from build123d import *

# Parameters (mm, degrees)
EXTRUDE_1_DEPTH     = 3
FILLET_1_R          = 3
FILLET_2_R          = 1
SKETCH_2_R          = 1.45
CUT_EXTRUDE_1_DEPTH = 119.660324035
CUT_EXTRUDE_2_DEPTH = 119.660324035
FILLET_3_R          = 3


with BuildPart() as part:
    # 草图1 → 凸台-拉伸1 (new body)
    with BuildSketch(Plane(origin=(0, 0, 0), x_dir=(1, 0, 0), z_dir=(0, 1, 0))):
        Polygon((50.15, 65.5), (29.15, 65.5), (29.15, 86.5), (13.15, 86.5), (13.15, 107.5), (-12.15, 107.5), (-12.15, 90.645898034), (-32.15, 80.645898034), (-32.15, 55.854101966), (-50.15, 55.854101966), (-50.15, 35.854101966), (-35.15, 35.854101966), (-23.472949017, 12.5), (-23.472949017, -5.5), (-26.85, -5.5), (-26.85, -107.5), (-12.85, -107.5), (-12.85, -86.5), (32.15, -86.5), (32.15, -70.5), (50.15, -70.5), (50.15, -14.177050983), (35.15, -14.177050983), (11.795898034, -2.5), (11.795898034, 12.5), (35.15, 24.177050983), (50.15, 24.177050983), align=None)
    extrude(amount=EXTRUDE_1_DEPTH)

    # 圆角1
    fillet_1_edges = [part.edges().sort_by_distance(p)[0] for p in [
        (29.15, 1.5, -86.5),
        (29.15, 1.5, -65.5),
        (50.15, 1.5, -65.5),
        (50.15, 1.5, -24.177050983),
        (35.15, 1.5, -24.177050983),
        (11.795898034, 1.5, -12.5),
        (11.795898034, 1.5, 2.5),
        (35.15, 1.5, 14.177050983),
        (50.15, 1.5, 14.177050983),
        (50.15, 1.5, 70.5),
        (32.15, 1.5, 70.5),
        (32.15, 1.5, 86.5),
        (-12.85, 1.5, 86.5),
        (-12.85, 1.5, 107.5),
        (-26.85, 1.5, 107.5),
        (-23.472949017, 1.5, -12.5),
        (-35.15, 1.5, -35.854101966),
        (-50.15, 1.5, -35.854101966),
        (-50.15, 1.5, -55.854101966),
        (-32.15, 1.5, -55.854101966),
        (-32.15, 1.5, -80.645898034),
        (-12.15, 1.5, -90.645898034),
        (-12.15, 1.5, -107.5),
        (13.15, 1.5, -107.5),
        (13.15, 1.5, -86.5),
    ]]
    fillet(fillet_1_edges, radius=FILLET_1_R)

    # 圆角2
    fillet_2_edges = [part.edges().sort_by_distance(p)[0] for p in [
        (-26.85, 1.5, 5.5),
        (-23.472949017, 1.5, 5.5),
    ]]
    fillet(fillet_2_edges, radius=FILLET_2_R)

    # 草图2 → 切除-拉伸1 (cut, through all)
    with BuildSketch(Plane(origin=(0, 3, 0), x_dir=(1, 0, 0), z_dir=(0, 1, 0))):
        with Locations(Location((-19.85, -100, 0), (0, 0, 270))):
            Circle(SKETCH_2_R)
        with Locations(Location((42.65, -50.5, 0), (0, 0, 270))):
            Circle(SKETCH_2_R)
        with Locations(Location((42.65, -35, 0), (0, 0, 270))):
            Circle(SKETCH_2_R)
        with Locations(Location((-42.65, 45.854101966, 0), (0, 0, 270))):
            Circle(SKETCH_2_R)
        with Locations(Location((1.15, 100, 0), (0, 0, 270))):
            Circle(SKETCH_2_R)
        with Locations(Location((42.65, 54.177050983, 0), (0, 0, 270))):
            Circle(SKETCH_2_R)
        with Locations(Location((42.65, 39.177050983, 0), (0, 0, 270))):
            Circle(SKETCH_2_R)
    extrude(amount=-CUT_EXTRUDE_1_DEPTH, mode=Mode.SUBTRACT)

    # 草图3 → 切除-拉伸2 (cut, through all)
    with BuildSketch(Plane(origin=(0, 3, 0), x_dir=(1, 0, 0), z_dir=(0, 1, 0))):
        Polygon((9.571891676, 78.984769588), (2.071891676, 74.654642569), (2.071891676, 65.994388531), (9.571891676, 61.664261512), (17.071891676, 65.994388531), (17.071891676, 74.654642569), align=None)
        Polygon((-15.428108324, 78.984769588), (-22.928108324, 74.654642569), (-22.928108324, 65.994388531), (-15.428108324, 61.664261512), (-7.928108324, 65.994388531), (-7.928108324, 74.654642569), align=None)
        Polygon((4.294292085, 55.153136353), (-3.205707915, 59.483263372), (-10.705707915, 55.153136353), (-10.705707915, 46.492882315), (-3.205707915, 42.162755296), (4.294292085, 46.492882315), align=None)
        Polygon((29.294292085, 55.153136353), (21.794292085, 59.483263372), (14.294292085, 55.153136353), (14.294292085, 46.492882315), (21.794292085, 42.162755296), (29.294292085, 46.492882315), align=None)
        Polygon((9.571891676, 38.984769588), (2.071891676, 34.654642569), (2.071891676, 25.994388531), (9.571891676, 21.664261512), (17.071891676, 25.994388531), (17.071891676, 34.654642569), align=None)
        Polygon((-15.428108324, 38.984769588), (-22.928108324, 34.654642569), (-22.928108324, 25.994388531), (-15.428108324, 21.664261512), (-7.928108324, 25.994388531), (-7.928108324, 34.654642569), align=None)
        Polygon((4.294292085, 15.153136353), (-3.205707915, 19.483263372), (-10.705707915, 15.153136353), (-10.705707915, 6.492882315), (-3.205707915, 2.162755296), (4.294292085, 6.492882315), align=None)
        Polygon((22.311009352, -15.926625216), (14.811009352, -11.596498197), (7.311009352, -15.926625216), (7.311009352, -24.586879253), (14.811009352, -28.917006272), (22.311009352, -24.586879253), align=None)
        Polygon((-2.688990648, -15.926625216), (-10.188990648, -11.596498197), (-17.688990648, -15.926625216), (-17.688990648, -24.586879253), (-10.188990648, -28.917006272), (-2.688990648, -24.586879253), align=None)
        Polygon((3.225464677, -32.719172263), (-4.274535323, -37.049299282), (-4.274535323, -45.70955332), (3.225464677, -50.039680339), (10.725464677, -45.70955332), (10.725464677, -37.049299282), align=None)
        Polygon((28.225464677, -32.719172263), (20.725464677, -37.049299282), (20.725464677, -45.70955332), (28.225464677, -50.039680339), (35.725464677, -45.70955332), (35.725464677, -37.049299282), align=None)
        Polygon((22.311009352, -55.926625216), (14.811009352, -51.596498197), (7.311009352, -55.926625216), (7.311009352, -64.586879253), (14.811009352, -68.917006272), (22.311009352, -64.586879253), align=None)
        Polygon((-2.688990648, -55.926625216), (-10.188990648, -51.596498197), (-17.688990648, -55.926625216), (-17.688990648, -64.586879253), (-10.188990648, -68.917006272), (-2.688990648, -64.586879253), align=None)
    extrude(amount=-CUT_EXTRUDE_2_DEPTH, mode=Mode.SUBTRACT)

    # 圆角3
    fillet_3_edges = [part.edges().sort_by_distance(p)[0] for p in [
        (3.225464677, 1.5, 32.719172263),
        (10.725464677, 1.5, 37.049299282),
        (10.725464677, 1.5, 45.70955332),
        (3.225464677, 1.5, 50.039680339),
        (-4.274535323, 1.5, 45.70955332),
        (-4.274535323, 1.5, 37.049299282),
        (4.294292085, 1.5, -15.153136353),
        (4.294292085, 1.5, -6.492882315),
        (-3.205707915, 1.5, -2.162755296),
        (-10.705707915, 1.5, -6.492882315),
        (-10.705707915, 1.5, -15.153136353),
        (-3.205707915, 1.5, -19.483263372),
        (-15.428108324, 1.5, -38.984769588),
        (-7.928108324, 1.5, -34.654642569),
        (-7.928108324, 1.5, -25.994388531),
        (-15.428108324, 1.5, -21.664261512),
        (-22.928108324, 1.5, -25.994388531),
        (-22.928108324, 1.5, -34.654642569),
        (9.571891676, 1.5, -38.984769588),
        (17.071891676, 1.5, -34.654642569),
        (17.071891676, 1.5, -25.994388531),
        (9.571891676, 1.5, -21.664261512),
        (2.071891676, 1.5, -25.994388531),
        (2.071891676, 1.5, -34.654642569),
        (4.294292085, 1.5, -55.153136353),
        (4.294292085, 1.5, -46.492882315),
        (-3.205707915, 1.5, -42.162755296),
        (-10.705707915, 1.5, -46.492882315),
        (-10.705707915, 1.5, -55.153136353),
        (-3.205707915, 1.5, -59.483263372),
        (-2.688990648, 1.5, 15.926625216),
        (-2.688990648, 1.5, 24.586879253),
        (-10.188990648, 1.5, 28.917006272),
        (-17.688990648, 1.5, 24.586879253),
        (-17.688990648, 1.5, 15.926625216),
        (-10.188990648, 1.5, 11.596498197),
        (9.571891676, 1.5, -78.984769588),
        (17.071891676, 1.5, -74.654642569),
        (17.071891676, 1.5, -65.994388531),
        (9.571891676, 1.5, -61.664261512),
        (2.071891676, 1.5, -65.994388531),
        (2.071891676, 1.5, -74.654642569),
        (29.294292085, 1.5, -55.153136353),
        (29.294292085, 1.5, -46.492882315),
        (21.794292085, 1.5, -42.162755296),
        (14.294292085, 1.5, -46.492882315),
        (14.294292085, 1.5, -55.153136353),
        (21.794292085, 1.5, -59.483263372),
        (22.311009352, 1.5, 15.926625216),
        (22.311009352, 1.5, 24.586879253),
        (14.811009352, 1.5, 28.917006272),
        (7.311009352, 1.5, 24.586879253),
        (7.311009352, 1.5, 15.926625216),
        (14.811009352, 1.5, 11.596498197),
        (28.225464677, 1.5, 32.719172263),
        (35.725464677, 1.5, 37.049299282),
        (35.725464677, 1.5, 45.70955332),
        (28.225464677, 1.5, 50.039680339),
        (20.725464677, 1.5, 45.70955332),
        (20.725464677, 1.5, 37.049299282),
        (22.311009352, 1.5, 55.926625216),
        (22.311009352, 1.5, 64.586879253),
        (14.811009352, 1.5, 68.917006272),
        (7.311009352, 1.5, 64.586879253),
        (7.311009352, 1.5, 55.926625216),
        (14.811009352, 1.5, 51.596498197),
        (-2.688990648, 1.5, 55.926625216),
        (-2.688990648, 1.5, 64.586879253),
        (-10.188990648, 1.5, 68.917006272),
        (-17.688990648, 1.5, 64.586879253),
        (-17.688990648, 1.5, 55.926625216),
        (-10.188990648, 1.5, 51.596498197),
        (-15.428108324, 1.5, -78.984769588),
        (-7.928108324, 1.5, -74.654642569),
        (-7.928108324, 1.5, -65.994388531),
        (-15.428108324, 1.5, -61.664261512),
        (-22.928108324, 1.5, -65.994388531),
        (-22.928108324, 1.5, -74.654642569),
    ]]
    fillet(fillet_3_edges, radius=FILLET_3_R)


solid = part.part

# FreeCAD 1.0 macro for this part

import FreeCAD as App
import Part
import Sketcher
from FreeCAD import Vector
Q = App.Units.Quantity


def edges_at(feature, points):
    """Names of the edges that pass closest to the given points."""
    edges = feature.Shape.Edges
    near = lambda p: min(range(len(edges)), key=lambda i: edges[i].distToShape(Part.Vertex(*p))[0])
    return sorted({f"Edge{near(p) + 1}" for p in points})


def add_polygon(sketch, points):
    """Adds a closed chain of lines whose ends are joined by coincident constraints."""
    first, n = sketch.GeometryCount, len(points)
    for a, b in zip(points, points[1:] + points[:1]):
        sketch.addGeometry(Part.LineSegment(App.Vector(*a, 0), App.Vector(*b, 0)), False)
    for i in range(n):
        sketch.addConstraint(Sketcher.Constraint("Coincident", first + i, 2, first + (i + 1) % n, 1))

doc = App.newDocument("Part")
body = doc.addObject("PartDesign::Body", "Body")

# Sketch on XZ plane
sketch1 = doc.addObject("Sketcher::SketchObject", "Sketch")
body.addObject(sketch1)
sketch1.AttachmentSupport = (doc.XZ_Plane, [""])
sketch1.MapMode = "FlatFace"
add_polygon(sketch1, [(50.15, -65.5), (29.15, -65.5), (29.15, -86.5), (13.15, -86.5), (13.15, -107.5), (-12.15, -107.5), (-12.15, -90.645898), (-32.15, -80.645898), (-32.15, -55.854102), (-50.15, -55.854102), (-50.15, -35.854102), (-35.15, -35.854102), (-23.472949, -12.5), (-23.472949, 5.5), (-26.85, 5.5), (-26.85, 107.5), (-12.85, 107.5), (-12.85, 86.5), (32.15, 86.5), (32.15, 70.5), (50.15, 70.5), (50.15, 14.177051), (35.15, 14.177051), (11.795898, 2.5), (11.795898, -12.5), (35.15, -24.177051), (50.15, -24.177051)])  # lines 0-26
sketch1.addConstraint([
    Sketcher.Constraint("Horizontal", 0),
    Sketcher.Constraint("Vertical", 1),
    Sketcher.Constraint("Horizontal", 2),
    Sketcher.Constraint("Vertical", 3),
    Sketcher.Constraint("Horizontal", 4),
    Sketcher.Constraint("Vertical", 5),
    Sketcher.Constraint("Vertical", 7),
    Sketcher.Constraint("Horizontal", 8),
    Sketcher.Constraint("Vertical", 9),
    Sketcher.Constraint("Horizontal", 10),
    Sketcher.Constraint("Vertical", 12),
    Sketcher.Constraint("Horizontal", 13),
    Sketcher.Constraint("Vertical", 14),
    Sketcher.Constraint("Horizontal", 15),
    Sketcher.Constraint("Vertical", 16),
    Sketcher.Constraint("Horizontal", 17),
    Sketcher.Constraint("Vertical", 18),
    Sketcher.Constraint("Horizontal", 19),
    Sketcher.Constraint("Vertical", 20),
    Sketcher.Constraint("Horizontal", 21),
    Sketcher.Constraint("Vertical", 23),
    Sketcher.Constraint("Horizontal", 25),
    Sketcher.Constraint("Vertical", 26),
    Sketcher.Constraint("Perpendicular", 6, 11),
    Sketcher.Constraint("Perpendicular", 11, 24),
    Sketcher.Constraint("Horizontal", 11, 2, 23, 2),
    Sketcher.Constraint("Vertical", 21, 2, 24, 2),
    Sketcher.Constraint("Vertical", 20, 2, 25, 2),
    Sketcher.Constraint("Equal", 8, 19),
    Sketcher.Constraint("Equal", 10, 21),
    Sketcher.Constraint("Equal", 0, 1),
    Sketcher.Constraint("Equal", 1, 3),
    Sketcher.Constraint("Equal", 19, 12),
    Sketcher.Constraint("Equal", 3, 16),
    Sketcher.Constraint("Equal", 2, 18),
    Sketcher.Constraint("Equal", 25, 23),
    Sketcher.Constraint("Equal", 11, 22),
    Sketcher.Constraint("Equal", 22, 24),
    Sketcher.Constraint("DistanceX", 0, 2, 0, 1, 21.0),
    Sketcher.Constraint("DistanceX", 2, 2, 2, 1, 16.0),
    Sketcher.Constraint("DistanceX", 8, 2, 8, 1, 18.0),
    Sketcher.Constraint("DistanceX", 10, 1, 10, 2, 15.0),
    Sketcher.Constraint("DistanceX", 15, 1, 15, 2, 14.0),
    Sketcher.Constraint("DistanceX", 17, 1, 17, 2, 45.0),
    Sketcher.Constraint("DistanceY", 9, 1, 9, 2, 20.0),
    Sketcher.Constraint("DistanceY", 14, 1, 14, 2, 102.0),
    Sketcher.Constraint("DistanceX", 4, 2, 4, 1, 25.3),
    Sketcher.Constraint("DistanceX", 6, 2, 5, 2, 20.0),
    Sketcher.Constraint("DistanceY", 5, 2, 6, 2, 10.0),
    Sketcher.Constraint("DistanceY", 0, 2, -1, 1, 65.5),
    Sketcher.Constraint("DistanceY", 11, 2, -1, 1, 12.5),
    Sketcher.Constraint("DistanceX", -1, 1, 0, 2, 29.15),
    Sketcher.Constraint("DistanceY", 5, 1, 5, 2, 16.854102),
    Sketcher.Constraint("DistanceX", 13, 2, 13, 1, 3.377051),
])
pad1 = doc.addObject("PartDesign::Pad", "Pad")
body.addObject(pad1)
pad1.Profile = sketch1
pad1.Length = 3
pad1.Reversed = True
doc.recompute()

fillet = doc.addObject("PartDesign::Fillet", "Fillet")
body.addObject(fillet)
fillet.Base = (pad1, edges_at(pad1, [
    (29.15, 1.5, -86.5),
    (29.15, 1.5, -65.5),
    (50.15, 1.5, -65.5),
    (50.15, 1.5, -24.177),
    (35.15, 1.5, -24.177),
    (11.796, 1.5, -12.5),
    (11.796, 1.5, 2.5),
    (35.15, 1.5, 14.177),
    (50.15, 1.5, 14.177),
    (50.15, 1.5, 70.5),
    (32.15, 1.5, 70.5),
    (32.15, 1.5, 86.5),
    (-12.85, 1.5, 86.5),
    (-12.85, 1.5, 107.5),
    (-26.85, 1.5, 107.5),
    (-23.473, 1.5, -12.5),
    (-35.15, 1.5, -35.854),
    (-50.15, 1.5, -35.854),
    (-50.15, 1.5, -55.854),
    (-32.15, 1.5, -55.854),
    (-32.15, 1.5, -80.646),
    (-12.15, 1.5, -90.646),
    (-12.15, 1.5, -107.5),
    (13.15, 1.5, -107.5),
    (13.15, 1.5, -86.5),
]))
fillet.Radius = 3
doc.recompute()

fillet2 = doc.addObject("PartDesign::Fillet", "Fillet001")
body.addObject(fillet2)
fillet2.Base = (fillet, edges_at(fillet, [(-26.85, 1.5, 5.5), (-23.473, 1.5, 5.5)]))
fillet2.Radius = 1

# Sketch on XZ plane
sketch2 = doc.addObject("Sketcher::SketchObject", "Sketch001")
body.addObject(sketch2)
sketch2.AttachmentSupport = (doc.XZ_Plane, [""])
sketch2.MapMode = "FlatFace"
sketch2.AttachmentOffset = App.Placement(Vector(0, 0, -3), App.Rotation())
sketch2.addGeometry([
    Part.Circle(Vector(-19.85, 100, 0), Vector(0, 0, 1), 1.45),  # 0
    Part.Circle(Vector(42.65, 50.5, 0), Vector(0, 0, 1), 1.45),  # 1
    Part.Circle(Vector(42.65, 35, 0), Vector(0, 0, 1), 1.45),  # 2
    Part.Circle(Vector(-42.65, -45.854102, 0), Vector(0, 0, 1), 1.45),  # 3
    Part.Circle(Vector(1.15, -100, 0), Vector(0, 0, 1), 1.45),  # 4
    Part.Circle(Vector(42.65, -54.177051, 0), Vector(0, 0, 1), 1.45),  # 5
    Part.Circle(Vector(42.65, -39.177051, 0), Vector(0, 0, 1), 1.45),  # 6
], False)
sketch2.addConstraint([
    Sketcher.Constraint("Equal", 0, 1),
    Sketcher.Constraint("Equal", 1, 2),
    Sketcher.Constraint("Equal", 2, 3),
    Sketcher.Constraint("Equal", 3, 4),
    Sketcher.Constraint("Equal", 4, 5),
    Sketcher.Constraint("Equal", 5, 6),
    Sketcher.Constraint("Vertical", 1, 3, 2, 3),
    Sketcher.Constraint("Vertical", 2, 3, 5, 3),
    Sketcher.Constraint("Vertical", 5, 3, 6, 3),
    Sketcher.Constraint("Diameter", 0, 2.9),
    Sketcher.Constraint("DistanceY", -1, 1, 0, 3, 100.0),
    Sketcher.Constraint("DistanceY", -1, 1, 2, 3, 35.0),
    Sketcher.Constraint("DistanceY", 4, 3, -1, 1, 100.0),
    Sketcher.Constraint("DistanceX", 0, 3, 4, 3, 21.0),
    Sketcher.Constraint("DistanceY", 5, 3, 6, 3, 15.0),
    Sketcher.Constraint("DistanceY", -1, 1, 1, 3, 50.5),
    Sketcher.Constraint("DistanceX", 0, 3, 1, 3, 62.5),
    Sketcher.Constraint("DistanceX", 3, 3, 2, 3, 85.3),
    Sketcher.Constraint("DistanceX", 0, 3, -1, 1, 19.85),
    Sketcher.Constraint("DistanceY", 3, 3, -1, 1, 45.854102),
    Sketcher.Constraint("DistanceY", 5, 3, -1, 1, 54.177051),
])
pocket1 = doc.addObject("PartDesign::Pocket", "Pocket")
body.addObject(pocket1)
pocket1.Profile = sketch2
pocket1.Type = "ThroughAll"
pocket1.Reversed = True

# Sketch on XZ plane
sketch3 = doc.addObject("Sketcher::SketchObject", "Sketch002")
body.addObject(sketch3)
sketch3.AttachmentSupport = (doc.XZ_Plane, [""])
sketch3.MapMode = "FlatFace"
sketch3.AttachmentOffset = App.Placement(Vector(0, 0, -3), App.Rotation())
add_polygon(sketch3, [(9.571892, -78.98477), (2.071892, -74.654643), (2.071892, -65.994389), (9.571892, -61.664262), (17.071892, -65.994389), (17.071892, -74.654643)])  # lines 0-5
add_polygon(sketch3, [(-15.428108, -78.98477), (-22.928108, -74.654643), (-22.928108, -65.994389), (-15.428108, -61.664262), (-7.928108, -65.994389), (-7.928108, -74.654643)])  # lines 6-11
add_polygon(sketch3, [(4.294292, -55.153136), (-3.205708, -59.483263), (-10.705708, -55.153136), (-10.705708, -46.492882), (-3.205708, -42.162755), (4.294292, -46.492882)])  # lines 12-17
add_polygon(sketch3, [(29.294292, -55.153136), (21.794292, -59.483263), (14.294292, -55.153136), (14.294292, -46.492882), (21.794292, -42.162755), (29.294292, -46.492882)])  # lines 18-23
add_polygon(sketch3, [(9.571892, -38.98477), (2.071892, -34.654643), (2.071892, -25.994389), (9.571892, -21.664262), (17.071892, -25.994389), (17.071892, -34.654643)])  # lines 24-29
add_polygon(sketch3, [(-15.428108, -38.98477), (-22.928108, -34.654643), (-22.928108, -25.994389), (-15.428108, -21.664262), (-7.928108, -25.994389), (-7.928108, -34.654643)])  # lines 30-35
add_polygon(sketch3, [(4.294292, -15.153136), (-3.205708, -19.483263), (-10.705708, -15.153136), (-10.705708, -6.492882), (-3.205708, -2.162755), (4.294292, -6.492882)])  # lines 36-41
add_polygon(sketch3, [(22.311009, 15.926625), (14.811009, 11.596498), (7.311009, 15.926625), (7.311009, 24.586879), (14.811009, 28.917006), (22.311009, 24.586879)])  # lines 42-47
add_polygon(sketch3, [(-2.688991, 15.926625), (-10.188991, 11.596498), (-17.688991, 15.926625), (-17.688991, 24.586879), (-10.188991, 28.917006), (-2.688991, 24.586879)])  # lines 48-53
add_polygon(sketch3, [(3.225465, 32.719172), (-4.274535, 37.049299), (-4.274535, 45.709553), (3.225465, 50.03968), (10.725465, 45.709553), (10.725465, 37.049299)])  # lines 54-59
add_polygon(sketch3, [(28.225465, 32.719172), (20.725465, 37.049299), (20.725465, 45.709553), (28.225465, 50.03968), (35.725465, 45.709553), (35.725465, 37.049299)])  # lines 60-65
add_polygon(sketch3, [(22.311009, 55.926625), (14.811009, 51.596498), (7.311009, 55.926625), (7.311009, 64.586879), (14.811009, 68.917006), (22.311009, 64.586879)])  # lines 66-71
add_polygon(sketch3, [(-2.688991, 55.926625), (-10.188991, 51.596498), (-17.688991, 55.926625), (-17.688991, 64.586879), (-10.188991, 68.917006), (-2.688991, 64.586879)])  # lines 72-77
sketch3.addConstraint([
    Sketcher.Constraint("Vertical", 1),
    Sketcher.Constraint("Vertical", 4),
    Sketcher.Constraint("Vertical", 7),
    Sketcher.Constraint("Vertical", 10),
    Sketcher.Constraint("Vertical", 14),
    Sketcher.Constraint("Vertical", 17),
    Sketcher.Constraint("Vertical", 20),
    Sketcher.Constraint("Vertical", 23),
    Sketcher.Constraint("Vertical", 25),
    Sketcher.Constraint("Vertical", 28),
    Sketcher.Constraint("Vertical", 31),
    Sketcher.Constraint("Vertical", 34),
    Sketcher.Constraint("Vertical", 38),
    Sketcher.Constraint("Vertical", 41),
    Sketcher.Constraint("Vertical", 44),
    Sketcher.Constraint("Vertical", 47),
    Sketcher.Constraint("Vertical", 50),
    Sketcher.Constraint("Vertical", 53),
    Sketcher.Constraint("Vertical", 55),
    Sketcher.Constraint("Vertical", 58),
    Sketcher.Constraint("Vertical", 61),
    Sketcher.Constraint("Vertical", 64),
    Sketcher.Constraint("Vertical", 68),
    Sketcher.Constraint("Vertical", 71),
    Sketcher.Constraint("Vertical", 74),
    Sketcher.Constraint("Vertical", 77),
    Sketcher.Constraint("Parallel", 0, 3),
    Sketcher.Constraint("Parallel", 2, 5),
    Sketcher.Constraint("Parallel", 3, 6),
    Sketcher.Constraint("Parallel", 5, 8),
    Sketcher.Constraint("Parallel", 6, 9),
    Sketcher.Constraint("Parallel", 8, 11),
    Sketcher.Constraint("Parallel", 11, 12),
    Sketcher.Constraint("Parallel", 9, 13),
    Sketcher.Constraint("Parallel", 12, 15),
    Sketcher.Constraint("Parallel", 13, 16),
    Sketcher.Constraint("Parallel", 15, 18),
    Sketcher.Constraint("Parallel", 16, 19),
    Sketcher.Constraint("Parallel", 18, 21),
    Sketcher.Constraint("Parallel", 19, 22),
    Sketcher.Constraint("Parallel", 22, 24),
    Sketcher.Constraint("Parallel", 21, 26),
    Sketcher.Constraint("Parallel", 24, 27),
    Sketcher.Constraint("Parallel", 26, 29),
    Sketcher.Constraint("Parallel", 27, 30),
    Sketcher.Constraint("Parallel", 29, 32),
    Sketcher.Constraint("Parallel", 30, 33),
    Sketcher.Constraint("Parallel", 32, 35),
    Sketcher.Constraint("Parallel", 35, 36),
    Sketcher.Constraint("Parallel", 33, 37),
    Sketcher.Constraint("Parallel", 36, 39),
    Sketcher.Constraint("Parallel", 37, 40),
    Sketcher.Constraint("Parallel", 39, 42),
    Sketcher.Constraint("Parallel", 40, 43),
    Sketcher.Constraint("Parallel", 42, 45),
    Sketcher.Constraint("Parallel", 43, 46),
    Sketcher.Constraint("Parallel", 45, 48),
    Sketcher.Constraint("Parallel", 46, 49),
    Sketcher.Constraint("Parallel", 48, 51),
    Sketcher.Constraint("Parallel", 49, 52),
    Sketcher.Constraint("Parallel", 52, 54),
    Sketcher.Constraint("Parallel", 51, 56),
    Sketcher.Constraint("Parallel", 54, 57),
    Sketcher.Constraint("Parallel", 56, 59),
    Sketcher.Constraint("Parallel", 57, 60),
    Sketcher.Constraint("Parallel", 59, 62),
    Sketcher.Constraint("Parallel", 60, 63),
    Sketcher.Constraint("Parallel", 62, 65),
    Sketcher.Constraint("Parallel", 65, 66),
    Sketcher.Constraint("Parallel", 63, 67),
    Sketcher.Constraint("Parallel", 66, 69),
    Sketcher.Constraint("Parallel", 67, 70),
    Sketcher.Constraint("Parallel", 69, 72),
    Sketcher.Constraint("Parallel", 70, 73),
    Sketcher.Constraint("Parallel", 72, 75),
    Sketcher.Constraint("Parallel", 73, 76),
    Sketcher.Constraint("Horizontal", 1, 2, 3, 2),
    Sketcher.Constraint("Horizontal", 0, 2, 4, 2),
    Sketcher.Constraint("Horizontal", 4, 2, 6, 2),
    Sketcher.Constraint("Horizontal", 3, 2, 7, 2),
    Sketcher.Constraint("Horizontal", 2, 2, 8, 2),
    Sketcher.Constraint("Horizontal", 7, 2, 9, 2),
    Sketcher.Constraint("Horizontal", 6, 2, 10, 2),
    Sketcher.Constraint("Horizontal", 14, 2, 16, 2),
    Sketcher.Constraint("Horizontal", 13, 2, 17, 2),
    Sketcher.Constraint("Horizontal", 12, 2, 18, 2),
    Sketcher.Constraint("Horizontal", 17, 2, 19, 2),
    Sketcher.Constraint("Horizontal", 16, 2, 20, 2),
    Sketcher.Constraint("Horizontal", 15, 2, 21, 2),
    Sketcher.Constraint("Horizontal", 20, 2, 22, 2),
    Sketcher.Constraint("Horizontal", 25, 2, 27, 2),
    Sketcher.Constraint("Horizontal", 24, 2, 28, 2),
    Sketcher.Constraint("Horizontal", 28, 2, 30, 2),
    Sketcher.Constraint("Horizontal", 27, 2, 31, 2),
    Sketcher.Constraint("Horizontal", 26, 2, 32, 2),
    Sketcher.Constraint("Horizontal", 31, 2, 33, 2),
    Sketcher.Constraint("Horizontal", 30, 2, 34, 2),
    Sketcher.Constraint("Horizontal", 38, 2, 40, 2),
    Sketcher.Constraint("Horizontal", 37, 2, 41, 2),
    Sketcher.Constraint("Horizontal", 44, 2, 46, 2),
    Sketcher.Constraint("Horizontal", 43, 2, 47, 2),
    Sketcher.Constraint("Horizontal", 42, 2, 48, 2),
    Sketcher.Constraint("Horizontal", 47, 2, 49, 2),
    Sketcher.Constraint("Horizontal", 46, 2, 50, 2),
    Sketcher.Constraint("Horizontal", 45, 2, 51, 2),
    Sketcher.Constraint("Horizontal", 50, 2, 52, 2),
    Sketcher.Constraint("Horizontal", 55, 2, 57, 2),
    Sketcher.Constraint("Horizontal", 54, 2, 58, 2),
    Sketcher.Constraint("Horizontal", 58, 2, 60, 2),
    Sketcher.Constraint("Horizontal", 57, 2, 61, 2),
    Sketcher.Constraint("Horizontal", 56, 2, 62, 2),
    Sketcher.Constraint("Horizontal", 61, 2, 63, 2),
    Sketcher.Constraint("Horizontal", 60, 2, 64, 2),
    Sketcher.Constraint("Horizontal", 68, 2, 70, 2),
    Sketcher.Constraint("Horizontal", 67, 2, 71, 2),
    Sketcher.Constraint("Horizontal", 66, 2, 72, 2),
    Sketcher.Constraint("Horizontal", 71, 2, 73, 2),
    Sketcher.Constraint("Horizontal", 70, 2, 74, 2),
    Sketcher.Constraint("Horizontal", 69, 2, 75, 2),
    Sketcher.Constraint("Horizontal", 74, 2, 76, 2),
    Sketcher.Constraint("Vertical", 2, 2, 5, 2),
    Sketcher.Constraint("Vertical", 1, 2, 24, 2),
    Sketcher.Constraint("Vertical", 5, 2, 26, 2),
    Sketcher.Constraint("Vertical", 7, 2, 30, 2),
    Sketcher.Constraint("Vertical", 15, 2, 36, 2),
    Sketcher.Constraint("Vertical", 14, 2, 37, 2),
    Sketcher.Constraint("Vertical", 45, 2, 66, 2),
    Sketcher.Constraint("Vertical", 44, 2, 67, 2),
    Sketcher.Constraint("Vertical", 51, 2, 72, 2),
    Sketcher.Constraint("Equal", 10, 14),
    Sketcher.Constraint("Equal", 23, 25),
    Sketcher.Constraint("Equal", 34, 38),
    Sketcher.Constraint("Equal", 41, 44),
    Sketcher.Constraint("Equal", 53, 55),
    Sketcher.Constraint("Equal", 64, 68),
    Sketcher.Constraint("Equal", 11, 12),
    Sketcher.Constraint("Equal", 40, 42),
    Sketcher.Constraint("Equal", 52, 54),
    Sketcher.Constraint("Angle", 0, Q("150 deg")),
    Sketcher.Constraint("DistanceY", -1, 1, 42, 2, 11.596498),
    Sketcher.Constraint("DistanceY", -1, 1, 54, 2, 37.049299),
    Sketcher.Constraint("DistanceY", -1, 1, 66, 2, 51.596498),
    Sketcher.Constraint("DistanceY", 1, 1, 1, 2, 8.660254),
    Sketcher.Constraint("DistanceX", -1, 1, 0, 2, 2.071892),
    Sketcher.Constraint("DistanceY", 1, 2, -1, 1, 65.994389),
    Sketcher.Constraint("DistanceX", -1, 1, 2, 2, 9.571892),
    Sketcher.Constraint("DistanceX", 6, 2, -1, 1, 22.928108),
    Sketcher.Constraint("DistanceY", 25, 2, -1, 1, 25.994389),
    Sketcher.Constraint("DistanceX", -1, 1, 42, 2, 14.811009),
    Sketcher.Constraint("DistanceX", 48, 2, -1, 1, 10.188991),
    Sketcher.Constraint("DistanceX", 12, 2, -1, 1, 3.205708),
    Sketcher.Constraint("DistanceY", 12, 2, -1, 1, 59.483263),
    Sketcher.Constraint("DistanceX", -1, 1, 18, 2, 21.794292),
    Sketcher.Constraint("DistanceY", 36, 2, -1, 1, 19.483263),
    Sketcher.Constraint("DistanceX", 54, 2, -1, 1, 4.274535),
    Sketcher.Constraint("DistanceX", -1, 1, 60, 2, 20.725465),
])
pocket2 = doc.addObject("PartDesign::Pocket", "Pocket001")
body.addObject(pocket2)
pocket2.Profile = sketch3
pocket2.Type = "ThroughAll"
pocket2.Reversed = True
doc.recompute()

fillet3 = doc.addObject("PartDesign::Fillet", "Fillet002")
body.addObject(fillet3)
fillet3.Base = (pocket2, edges_at(pocket2, [
    (3.225, 1.5, 32.719),
    (10.725, 1.5, 37.049),
    (10.725, 1.5, 45.71),
    (3.225, 1.5, 50.04),
    (-4.275, 1.5, 45.71),
    (-4.275, 1.5, 37.049),
    (4.294, 1.5, -15.153),
    (4.294, 1.5, -6.493),
    (-3.206, 1.5, -2.163),
    (-10.706, 1.5, -6.493),
    (-10.706, 1.5, -15.153),
    (-3.206, 1.5, -19.483),
    (-15.428, 1.5, -38.985),
    (-7.928, 1.5, -34.655),
    (-7.928, 1.5, -25.994),
    (-15.428, 1.5, -21.664),
    (-22.928, 1.5, -25.994),
    (-22.928, 1.5, -34.655),
    (9.572, 1.5, -38.985),
    (17.072, 1.5, -34.655),
    (17.072, 1.5, -25.994),
    (9.572, 1.5, -21.664),
    (2.072, 1.5, -25.994),
    (2.072, 1.5, -34.655),
    (4.294, 1.5, -55.153),
    (4.294, 1.5, -46.493),
    (-3.206, 1.5, -42.163),
    (-10.706, 1.5, -46.493),
    (-10.706, 1.5, -55.153),
    (-3.206, 1.5, -59.483),
    (-2.689, 1.5, 15.927),
    (-2.689, 1.5, 24.587),
    (-10.189, 1.5, 28.917),
    (-17.689, 1.5, 24.587),
    (-17.689, 1.5, 15.927),
    (-10.189, 1.5, 11.596),
    (9.572, 1.5, -78.985),
    (17.072, 1.5, -74.655),
    (17.072, 1.5, -65.994),
    (9.572, 1.5, -61.664),
    (2.072, 1.5, -65.994),
    (2.072, 1.5, -74.655),
    (29.294, 1.5, -55.153),
    (29.294, 1.5, -46.493),
    (21.794, 1.5, -42.163),
    (14.294, 1.5, -46.493),
    (14.294, 1.5, -55.153),
    (21.794, 1.5, -59.483),
    (22.311, 1.5, 15.927),
    (22.311, 1.5, 24.587),
    (14.811, 1.5, 28.917),
    (7.311, 1.5, 24.587),
    (7.311, 1.5, 15.927),
    (14.811, 1.5, 11.596),
    (28.225, 1.5, 32.719),
    (35.725, 1.5, 37.049),
    (35.725, 1.5, 45.71),
    (28.225, 1.5, 50.04),
    (20.725, 1.5, 45.71),
    (20.725, 1.5, 37.049),
    (22.311, 1.5, 55.927),
    (22.311, 1.5, 64.587),
    (14.811, 1.5, 68.917),
    (7.311, 1.5, 64.587),
    (7.311, 1.5, 55.927),
    (14.811, 1.5, 51.596),
    (-2.689, 1.5, 55.927),
    (-2.689, 1.5, 64.587),
    (-10.189, 1.5, 68.917),
    (-17.689, 1.5, 64.587),
    (-17.689, 1.5, 55.927),
    (-10.189, 1.5, 51.596),
    (-15.428, 1.5, -78.985),
    (-7.928, 1.5, -74.655),
    (-7.928, 1.5, -65.994),
    (-15.428, 1.5, -61.664),
    (-22.928, 1.5, -65.994),
    (-22.928, 1.5, -74.655),
]))
fillet3.Radius = 3

doc.recompute()
